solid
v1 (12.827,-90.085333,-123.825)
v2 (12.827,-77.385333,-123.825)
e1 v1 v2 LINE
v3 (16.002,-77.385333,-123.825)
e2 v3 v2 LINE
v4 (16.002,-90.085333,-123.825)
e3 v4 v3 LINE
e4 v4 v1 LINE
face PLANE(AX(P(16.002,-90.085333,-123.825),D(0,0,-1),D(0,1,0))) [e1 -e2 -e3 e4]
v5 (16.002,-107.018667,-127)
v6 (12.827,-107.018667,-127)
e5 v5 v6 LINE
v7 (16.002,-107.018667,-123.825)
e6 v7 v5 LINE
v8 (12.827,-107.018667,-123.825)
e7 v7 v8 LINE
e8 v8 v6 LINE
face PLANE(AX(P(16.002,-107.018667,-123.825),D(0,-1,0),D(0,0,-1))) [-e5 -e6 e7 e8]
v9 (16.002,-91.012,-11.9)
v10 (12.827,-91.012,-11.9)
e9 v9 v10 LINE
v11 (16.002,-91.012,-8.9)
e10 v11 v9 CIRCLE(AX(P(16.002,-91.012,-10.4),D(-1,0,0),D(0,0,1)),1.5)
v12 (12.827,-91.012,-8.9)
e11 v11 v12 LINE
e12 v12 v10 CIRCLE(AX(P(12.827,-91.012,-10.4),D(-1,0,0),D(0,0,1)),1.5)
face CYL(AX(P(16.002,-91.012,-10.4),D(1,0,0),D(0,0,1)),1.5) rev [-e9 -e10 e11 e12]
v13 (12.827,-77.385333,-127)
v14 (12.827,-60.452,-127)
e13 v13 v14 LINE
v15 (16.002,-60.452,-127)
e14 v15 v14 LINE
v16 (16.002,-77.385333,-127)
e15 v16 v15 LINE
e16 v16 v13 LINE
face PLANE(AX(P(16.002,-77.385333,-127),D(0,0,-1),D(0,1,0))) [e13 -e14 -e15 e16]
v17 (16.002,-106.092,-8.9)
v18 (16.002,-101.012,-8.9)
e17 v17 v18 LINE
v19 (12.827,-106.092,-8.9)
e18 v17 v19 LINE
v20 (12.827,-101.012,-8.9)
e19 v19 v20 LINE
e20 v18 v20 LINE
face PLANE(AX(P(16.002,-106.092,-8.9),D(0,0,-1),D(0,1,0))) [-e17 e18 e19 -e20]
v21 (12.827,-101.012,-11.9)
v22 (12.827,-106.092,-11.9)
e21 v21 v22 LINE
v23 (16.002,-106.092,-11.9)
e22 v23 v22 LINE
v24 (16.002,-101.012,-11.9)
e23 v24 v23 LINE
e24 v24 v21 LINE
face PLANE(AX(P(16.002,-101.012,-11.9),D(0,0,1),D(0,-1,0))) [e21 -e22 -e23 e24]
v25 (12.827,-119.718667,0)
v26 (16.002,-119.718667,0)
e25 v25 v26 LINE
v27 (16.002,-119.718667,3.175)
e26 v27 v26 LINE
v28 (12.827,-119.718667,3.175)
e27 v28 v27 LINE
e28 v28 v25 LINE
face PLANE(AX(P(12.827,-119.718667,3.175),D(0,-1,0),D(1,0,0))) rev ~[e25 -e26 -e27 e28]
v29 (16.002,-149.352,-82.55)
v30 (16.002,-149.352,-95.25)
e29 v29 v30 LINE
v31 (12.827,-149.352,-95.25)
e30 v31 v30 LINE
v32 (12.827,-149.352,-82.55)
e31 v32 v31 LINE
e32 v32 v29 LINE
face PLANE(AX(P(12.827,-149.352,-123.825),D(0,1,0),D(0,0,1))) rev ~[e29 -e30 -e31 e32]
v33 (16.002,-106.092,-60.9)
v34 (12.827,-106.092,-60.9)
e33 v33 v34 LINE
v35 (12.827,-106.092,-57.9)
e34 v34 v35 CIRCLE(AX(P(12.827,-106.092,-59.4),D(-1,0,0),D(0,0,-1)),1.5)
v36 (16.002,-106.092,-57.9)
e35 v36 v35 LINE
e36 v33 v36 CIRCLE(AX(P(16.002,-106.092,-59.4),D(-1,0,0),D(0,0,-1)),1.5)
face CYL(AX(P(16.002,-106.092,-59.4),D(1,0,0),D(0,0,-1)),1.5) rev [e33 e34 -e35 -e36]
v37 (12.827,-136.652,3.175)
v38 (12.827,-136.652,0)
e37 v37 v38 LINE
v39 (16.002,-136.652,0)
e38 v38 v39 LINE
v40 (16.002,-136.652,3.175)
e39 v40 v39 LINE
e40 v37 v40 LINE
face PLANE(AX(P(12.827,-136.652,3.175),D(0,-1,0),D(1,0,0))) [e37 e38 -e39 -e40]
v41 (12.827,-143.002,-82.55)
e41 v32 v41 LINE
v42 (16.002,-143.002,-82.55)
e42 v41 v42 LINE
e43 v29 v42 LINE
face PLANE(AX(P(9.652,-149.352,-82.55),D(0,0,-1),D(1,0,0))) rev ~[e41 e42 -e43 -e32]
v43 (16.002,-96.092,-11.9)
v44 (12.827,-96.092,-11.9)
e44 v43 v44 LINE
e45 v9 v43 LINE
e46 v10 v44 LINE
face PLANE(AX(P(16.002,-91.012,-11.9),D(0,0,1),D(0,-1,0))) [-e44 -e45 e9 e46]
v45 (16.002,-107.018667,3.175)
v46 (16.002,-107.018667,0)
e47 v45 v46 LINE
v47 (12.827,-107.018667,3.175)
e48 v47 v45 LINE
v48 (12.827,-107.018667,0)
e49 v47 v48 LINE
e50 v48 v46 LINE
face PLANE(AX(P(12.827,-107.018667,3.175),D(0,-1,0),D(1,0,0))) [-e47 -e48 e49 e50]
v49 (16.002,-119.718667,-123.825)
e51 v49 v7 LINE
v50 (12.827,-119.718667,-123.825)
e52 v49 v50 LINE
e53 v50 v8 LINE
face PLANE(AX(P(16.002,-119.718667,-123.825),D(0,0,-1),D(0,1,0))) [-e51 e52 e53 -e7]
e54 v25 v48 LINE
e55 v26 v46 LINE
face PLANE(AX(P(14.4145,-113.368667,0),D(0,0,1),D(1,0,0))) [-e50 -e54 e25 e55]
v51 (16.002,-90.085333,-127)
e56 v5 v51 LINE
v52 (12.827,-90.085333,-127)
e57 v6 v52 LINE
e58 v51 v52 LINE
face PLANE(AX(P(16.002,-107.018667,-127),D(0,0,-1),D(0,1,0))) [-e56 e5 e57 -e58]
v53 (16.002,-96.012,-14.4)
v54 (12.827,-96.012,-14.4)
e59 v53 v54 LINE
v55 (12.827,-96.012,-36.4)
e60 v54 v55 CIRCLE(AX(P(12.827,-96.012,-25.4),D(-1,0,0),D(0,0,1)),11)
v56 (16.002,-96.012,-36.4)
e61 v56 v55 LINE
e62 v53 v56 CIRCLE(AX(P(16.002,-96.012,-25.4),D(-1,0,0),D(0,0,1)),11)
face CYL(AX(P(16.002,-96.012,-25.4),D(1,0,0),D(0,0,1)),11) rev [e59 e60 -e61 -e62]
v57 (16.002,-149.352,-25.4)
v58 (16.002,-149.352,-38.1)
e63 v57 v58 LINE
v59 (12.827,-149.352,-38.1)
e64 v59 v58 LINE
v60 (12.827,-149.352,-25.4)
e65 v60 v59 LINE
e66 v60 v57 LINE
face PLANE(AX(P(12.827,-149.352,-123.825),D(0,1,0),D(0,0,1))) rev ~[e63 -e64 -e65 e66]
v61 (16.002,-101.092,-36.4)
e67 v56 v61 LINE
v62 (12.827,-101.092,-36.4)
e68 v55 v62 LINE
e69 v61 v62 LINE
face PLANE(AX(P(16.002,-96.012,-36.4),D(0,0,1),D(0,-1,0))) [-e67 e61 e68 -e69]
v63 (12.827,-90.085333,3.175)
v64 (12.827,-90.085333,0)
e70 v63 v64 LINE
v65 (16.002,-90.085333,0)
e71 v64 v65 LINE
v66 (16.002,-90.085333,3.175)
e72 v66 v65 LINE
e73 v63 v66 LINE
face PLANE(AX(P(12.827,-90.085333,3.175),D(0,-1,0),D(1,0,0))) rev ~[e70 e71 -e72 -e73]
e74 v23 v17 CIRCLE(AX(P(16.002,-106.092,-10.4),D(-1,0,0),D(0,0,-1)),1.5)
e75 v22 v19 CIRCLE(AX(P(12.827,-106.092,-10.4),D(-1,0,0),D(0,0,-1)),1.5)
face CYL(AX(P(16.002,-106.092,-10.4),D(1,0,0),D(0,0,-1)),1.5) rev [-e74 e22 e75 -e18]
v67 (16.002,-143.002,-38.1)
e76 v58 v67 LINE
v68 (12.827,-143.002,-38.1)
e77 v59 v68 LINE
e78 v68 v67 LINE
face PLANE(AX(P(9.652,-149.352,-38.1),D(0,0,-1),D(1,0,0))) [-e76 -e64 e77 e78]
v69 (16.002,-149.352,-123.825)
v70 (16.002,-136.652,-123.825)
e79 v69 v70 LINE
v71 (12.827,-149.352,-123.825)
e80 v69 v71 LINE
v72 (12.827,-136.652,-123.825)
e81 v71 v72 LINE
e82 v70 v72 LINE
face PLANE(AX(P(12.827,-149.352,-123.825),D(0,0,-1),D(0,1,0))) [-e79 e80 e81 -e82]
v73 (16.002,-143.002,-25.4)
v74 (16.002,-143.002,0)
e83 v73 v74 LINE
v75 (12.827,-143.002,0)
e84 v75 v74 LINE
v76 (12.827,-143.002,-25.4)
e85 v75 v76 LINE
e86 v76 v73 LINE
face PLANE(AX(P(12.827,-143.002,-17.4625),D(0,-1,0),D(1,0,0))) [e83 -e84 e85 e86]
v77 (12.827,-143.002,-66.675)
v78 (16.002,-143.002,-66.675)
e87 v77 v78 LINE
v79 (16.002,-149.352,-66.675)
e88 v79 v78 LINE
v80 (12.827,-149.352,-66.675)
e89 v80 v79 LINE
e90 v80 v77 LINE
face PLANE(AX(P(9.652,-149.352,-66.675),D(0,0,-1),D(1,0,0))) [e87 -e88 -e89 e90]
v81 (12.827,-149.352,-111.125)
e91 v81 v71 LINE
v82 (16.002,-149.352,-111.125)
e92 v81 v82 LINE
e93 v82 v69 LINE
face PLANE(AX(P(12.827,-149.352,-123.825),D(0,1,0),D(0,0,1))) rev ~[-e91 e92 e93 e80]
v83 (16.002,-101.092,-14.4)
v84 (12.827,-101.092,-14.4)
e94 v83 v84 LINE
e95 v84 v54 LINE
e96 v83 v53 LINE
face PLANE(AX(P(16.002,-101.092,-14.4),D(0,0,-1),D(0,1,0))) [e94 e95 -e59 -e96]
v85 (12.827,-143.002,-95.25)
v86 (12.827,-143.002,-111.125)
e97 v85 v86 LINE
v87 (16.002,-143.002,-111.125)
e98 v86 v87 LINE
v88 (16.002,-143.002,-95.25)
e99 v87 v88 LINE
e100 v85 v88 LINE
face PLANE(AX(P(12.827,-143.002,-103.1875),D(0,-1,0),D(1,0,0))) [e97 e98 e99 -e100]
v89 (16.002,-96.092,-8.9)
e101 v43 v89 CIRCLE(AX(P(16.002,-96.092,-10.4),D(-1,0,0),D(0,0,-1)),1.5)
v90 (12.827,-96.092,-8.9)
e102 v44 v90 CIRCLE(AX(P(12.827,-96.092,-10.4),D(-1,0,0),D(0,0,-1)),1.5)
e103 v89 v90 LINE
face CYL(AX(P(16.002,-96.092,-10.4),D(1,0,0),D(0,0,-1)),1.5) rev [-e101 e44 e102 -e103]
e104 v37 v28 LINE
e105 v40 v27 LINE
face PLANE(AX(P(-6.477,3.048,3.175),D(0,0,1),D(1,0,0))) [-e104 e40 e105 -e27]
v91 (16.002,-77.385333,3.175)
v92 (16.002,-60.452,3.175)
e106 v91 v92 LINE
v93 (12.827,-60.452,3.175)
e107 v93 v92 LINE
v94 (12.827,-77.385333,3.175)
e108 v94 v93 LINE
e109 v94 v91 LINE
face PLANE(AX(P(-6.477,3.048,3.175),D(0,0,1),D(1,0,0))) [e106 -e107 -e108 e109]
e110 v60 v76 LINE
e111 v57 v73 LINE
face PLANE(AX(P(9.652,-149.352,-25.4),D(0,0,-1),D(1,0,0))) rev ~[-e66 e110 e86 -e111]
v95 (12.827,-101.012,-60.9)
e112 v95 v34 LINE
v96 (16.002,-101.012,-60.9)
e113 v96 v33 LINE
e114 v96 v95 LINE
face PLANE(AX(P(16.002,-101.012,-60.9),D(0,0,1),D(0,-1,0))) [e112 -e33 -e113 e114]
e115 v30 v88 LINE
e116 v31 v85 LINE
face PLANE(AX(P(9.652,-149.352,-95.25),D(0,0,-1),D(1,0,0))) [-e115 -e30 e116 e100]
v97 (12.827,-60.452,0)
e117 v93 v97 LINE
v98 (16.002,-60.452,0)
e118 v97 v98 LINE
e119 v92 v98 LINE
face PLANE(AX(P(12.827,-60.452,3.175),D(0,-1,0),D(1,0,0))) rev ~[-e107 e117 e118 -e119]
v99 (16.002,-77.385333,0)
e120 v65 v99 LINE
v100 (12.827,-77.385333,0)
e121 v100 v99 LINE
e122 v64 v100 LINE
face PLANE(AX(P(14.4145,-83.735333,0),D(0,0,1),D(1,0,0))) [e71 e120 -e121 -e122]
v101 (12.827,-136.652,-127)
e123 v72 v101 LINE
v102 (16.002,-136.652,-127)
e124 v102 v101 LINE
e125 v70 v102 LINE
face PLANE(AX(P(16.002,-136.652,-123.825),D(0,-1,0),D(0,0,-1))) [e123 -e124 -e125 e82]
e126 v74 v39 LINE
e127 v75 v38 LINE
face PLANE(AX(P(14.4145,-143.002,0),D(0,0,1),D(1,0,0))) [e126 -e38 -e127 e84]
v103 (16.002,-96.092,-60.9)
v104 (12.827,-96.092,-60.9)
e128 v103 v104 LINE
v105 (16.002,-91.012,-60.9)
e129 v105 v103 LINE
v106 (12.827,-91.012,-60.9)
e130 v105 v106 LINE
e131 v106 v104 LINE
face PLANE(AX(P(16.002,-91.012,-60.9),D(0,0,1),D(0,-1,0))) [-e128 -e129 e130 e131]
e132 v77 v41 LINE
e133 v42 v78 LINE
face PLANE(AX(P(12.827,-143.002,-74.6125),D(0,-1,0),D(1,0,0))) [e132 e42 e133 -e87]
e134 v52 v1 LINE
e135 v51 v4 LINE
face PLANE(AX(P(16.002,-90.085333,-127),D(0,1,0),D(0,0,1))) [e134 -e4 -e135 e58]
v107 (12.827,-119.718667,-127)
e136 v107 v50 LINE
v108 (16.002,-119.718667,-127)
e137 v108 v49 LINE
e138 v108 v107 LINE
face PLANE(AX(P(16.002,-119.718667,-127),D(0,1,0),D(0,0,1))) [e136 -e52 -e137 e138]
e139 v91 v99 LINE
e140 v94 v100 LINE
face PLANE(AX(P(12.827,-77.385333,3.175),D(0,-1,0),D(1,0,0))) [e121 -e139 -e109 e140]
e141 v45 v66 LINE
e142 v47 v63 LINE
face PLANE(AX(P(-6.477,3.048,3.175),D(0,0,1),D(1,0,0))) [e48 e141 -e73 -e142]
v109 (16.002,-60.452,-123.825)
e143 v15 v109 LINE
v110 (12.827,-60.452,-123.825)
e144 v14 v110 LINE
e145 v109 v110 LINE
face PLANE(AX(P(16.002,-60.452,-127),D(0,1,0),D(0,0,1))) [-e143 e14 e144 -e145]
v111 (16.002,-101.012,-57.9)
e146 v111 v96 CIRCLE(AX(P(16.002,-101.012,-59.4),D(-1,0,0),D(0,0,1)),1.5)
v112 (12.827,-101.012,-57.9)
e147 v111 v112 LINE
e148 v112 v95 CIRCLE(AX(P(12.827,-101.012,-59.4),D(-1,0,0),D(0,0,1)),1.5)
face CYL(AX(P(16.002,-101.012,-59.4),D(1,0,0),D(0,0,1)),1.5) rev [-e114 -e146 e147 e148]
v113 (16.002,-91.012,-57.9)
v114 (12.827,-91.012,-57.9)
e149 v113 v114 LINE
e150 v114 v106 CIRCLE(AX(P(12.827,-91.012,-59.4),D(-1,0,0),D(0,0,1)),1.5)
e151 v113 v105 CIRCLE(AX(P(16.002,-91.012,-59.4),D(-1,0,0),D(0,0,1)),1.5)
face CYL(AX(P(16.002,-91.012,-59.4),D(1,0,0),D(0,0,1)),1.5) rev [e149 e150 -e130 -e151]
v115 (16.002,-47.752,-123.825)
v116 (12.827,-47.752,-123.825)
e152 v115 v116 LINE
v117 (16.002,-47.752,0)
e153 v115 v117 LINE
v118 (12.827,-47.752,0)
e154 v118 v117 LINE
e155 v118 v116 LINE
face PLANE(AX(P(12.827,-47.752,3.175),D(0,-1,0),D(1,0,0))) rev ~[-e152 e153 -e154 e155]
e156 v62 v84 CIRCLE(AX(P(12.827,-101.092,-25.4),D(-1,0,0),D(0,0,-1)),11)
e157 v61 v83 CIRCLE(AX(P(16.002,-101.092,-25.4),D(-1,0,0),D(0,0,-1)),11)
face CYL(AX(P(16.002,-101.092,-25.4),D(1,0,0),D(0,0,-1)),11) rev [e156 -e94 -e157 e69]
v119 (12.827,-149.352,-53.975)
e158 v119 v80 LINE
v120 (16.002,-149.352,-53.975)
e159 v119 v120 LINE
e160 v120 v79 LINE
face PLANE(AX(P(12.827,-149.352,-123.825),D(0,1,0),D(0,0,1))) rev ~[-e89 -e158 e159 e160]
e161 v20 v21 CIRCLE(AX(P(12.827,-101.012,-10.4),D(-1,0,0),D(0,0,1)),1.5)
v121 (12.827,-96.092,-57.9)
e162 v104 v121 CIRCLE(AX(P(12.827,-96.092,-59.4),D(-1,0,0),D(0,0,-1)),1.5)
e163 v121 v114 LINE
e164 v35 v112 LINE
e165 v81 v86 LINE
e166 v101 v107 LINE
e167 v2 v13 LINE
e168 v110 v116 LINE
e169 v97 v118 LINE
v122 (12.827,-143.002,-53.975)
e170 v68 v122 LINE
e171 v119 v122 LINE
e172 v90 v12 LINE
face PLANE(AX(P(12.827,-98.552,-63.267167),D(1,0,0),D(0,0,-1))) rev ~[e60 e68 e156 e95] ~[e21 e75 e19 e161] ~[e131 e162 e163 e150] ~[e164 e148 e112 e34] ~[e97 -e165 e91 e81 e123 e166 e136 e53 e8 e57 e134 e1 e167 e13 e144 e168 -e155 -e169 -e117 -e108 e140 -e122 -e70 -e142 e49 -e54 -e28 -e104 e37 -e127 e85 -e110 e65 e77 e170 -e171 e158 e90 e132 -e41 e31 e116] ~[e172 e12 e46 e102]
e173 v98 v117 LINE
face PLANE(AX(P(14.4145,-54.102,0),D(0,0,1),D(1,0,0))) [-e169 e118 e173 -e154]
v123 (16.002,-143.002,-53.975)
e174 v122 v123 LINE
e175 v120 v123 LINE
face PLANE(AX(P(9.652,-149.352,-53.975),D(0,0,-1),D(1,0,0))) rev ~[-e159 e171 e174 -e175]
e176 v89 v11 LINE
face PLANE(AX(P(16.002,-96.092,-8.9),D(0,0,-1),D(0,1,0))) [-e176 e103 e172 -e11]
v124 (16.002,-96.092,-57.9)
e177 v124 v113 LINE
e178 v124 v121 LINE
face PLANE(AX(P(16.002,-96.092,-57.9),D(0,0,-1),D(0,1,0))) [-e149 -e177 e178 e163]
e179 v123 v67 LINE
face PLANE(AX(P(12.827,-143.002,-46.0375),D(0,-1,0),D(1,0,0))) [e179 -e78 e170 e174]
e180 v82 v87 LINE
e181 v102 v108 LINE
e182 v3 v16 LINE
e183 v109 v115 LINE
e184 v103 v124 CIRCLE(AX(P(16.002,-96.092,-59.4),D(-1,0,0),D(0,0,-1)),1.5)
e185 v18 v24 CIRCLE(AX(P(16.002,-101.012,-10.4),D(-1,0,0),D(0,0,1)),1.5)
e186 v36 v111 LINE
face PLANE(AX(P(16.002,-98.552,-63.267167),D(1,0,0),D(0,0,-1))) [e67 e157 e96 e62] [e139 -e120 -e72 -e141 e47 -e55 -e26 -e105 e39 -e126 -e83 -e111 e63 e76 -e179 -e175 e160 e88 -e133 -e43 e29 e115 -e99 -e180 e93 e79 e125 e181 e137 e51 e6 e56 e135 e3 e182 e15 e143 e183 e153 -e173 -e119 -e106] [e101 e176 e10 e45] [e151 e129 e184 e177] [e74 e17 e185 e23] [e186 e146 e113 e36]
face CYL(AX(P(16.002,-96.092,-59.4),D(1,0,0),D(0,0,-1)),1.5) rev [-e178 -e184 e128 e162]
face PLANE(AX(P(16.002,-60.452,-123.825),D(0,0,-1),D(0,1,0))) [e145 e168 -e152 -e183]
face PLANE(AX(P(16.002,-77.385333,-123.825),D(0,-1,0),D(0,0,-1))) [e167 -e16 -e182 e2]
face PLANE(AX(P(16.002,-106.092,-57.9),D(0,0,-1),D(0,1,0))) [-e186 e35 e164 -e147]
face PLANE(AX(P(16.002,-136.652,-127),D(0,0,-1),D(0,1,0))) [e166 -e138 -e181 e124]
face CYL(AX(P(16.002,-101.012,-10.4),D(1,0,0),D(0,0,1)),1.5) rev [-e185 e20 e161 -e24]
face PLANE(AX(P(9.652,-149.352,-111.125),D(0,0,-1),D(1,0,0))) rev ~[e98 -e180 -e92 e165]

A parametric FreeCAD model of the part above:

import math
import FreeCAD as App
import Part
import Sketcher
from FreeCAD import Vector
Q = App.Units.Quantity

doc = App.newDocument("Part")
body = doc.addObject("PartDesign::Body", "Body")

# Sketch on XY plane
sketch1 = doc.addObject("Sketcher::SketchObject", "Sketch")
body.addObject(sketch1)
sketch1.AttachmentSupport = (doc.XY_Plane, [""])
sketch1.MapMode = "FlatFace"
sketch1.addGeometry(Part.LineSegment(Vector(-29, 155.4, 0), Vector(-29, -149.4, 0)), False)
sketch1.addGeometry(Part.LineSegment(Vector(-29, -149.4, 0), Vector(16, -149.4, 0)), False)
sketch1.addGeometry(Part.LineSegment(Vector(16, -149.4, 0), Vector(16, 155.4, 0)), False)
sketch1.addGeometry(Part.LineSegment(Vector(16, 155.4, 0), Vector(-29, 155.4, 0)), False)
sketch1.addGeometry(Part.LineSegment(Vector(-3.3, -143, 0), Vector(-3.3, 133.9, 0)), False)
sketch1.addGeometry(Part.ArcOfCircle(Part.Circle(Vector(-5.8, 133.9, 0), Vector(0, 0, 1), 2.5), math.radians(0), math.radians(90)), False)
sketch1.addGeometry(Part.LineSegment(Vector(-5.8, 136.4, 0), Vector(-16.3, 136.4, 0)), False)
sketch1.addGeometry(Part.LineSegment(Vector(-16.3, 136.4, 0), Vector(-16.3, 143, 0)), False)
sketch1.addGeometry(Part.LineSegment(Vector(-16.3, 143, 0), Vector(3.3, 143, 0)), False)
sketch1.addGeometry(Part.LineSegment(Vector(3.3, 143, 0), Vector(3.3, -143, 0)), False)
sketch1.addGeometry(Part.LineSegment(Vector(3.3, -143, 0), Vector(-3.3, -143, 0)), False)
sketch1.addConstraint(Sketcher.Constraint("Coincident", 0, 2, 1, 1))
sketch1.addConstraint(Sketcher.Constraint("Coincident", 1, 2, 2, 1))
sketch1.addConstraint(Sketcher.Constraint("Coincident", 2, 2, 3, 1))
sketch1.addConstraint(Sketcher.Constraint("Coincident", 3, 2, 0, 1))
sketch1.addConstraint(Sketcher.Constraint("Tangent", 4, 2, 5, 1))
sketch1.addConstraint(Sketcher.Constraint("Tangent", 5, 2, 6, 1))
sketch1.addConstraint(Sketcher.Constraint("Coincident", 6, 2, 7, 1))
sketch1.addConstraint(Sketcher.Constraint("Coincident", 7, 2, 8, 1))
sketch1.addConstraint(Sketcher.Constraint("Coincident", 8, 2, 9, 1))
sketch1.addConstraint(Sketcher.Constraint("Coincident", 9, 2, 10, 1))
sketch1.addConstraint(Sketcher.Constraint("Coincident", 10, 2, 4, 1))
sketch1.addConstraint(Sketcher.Constraint("Vertical", 0))
sketch1.addConstraint(Sketcher.Constraint("Horizontal", 1))
sketch1.addConstraint(Sketcher.Constraint("Vertical", 2))
sketch1.addConstraint(Sketcher.Constraint("Horizontal", 3))
sketch1.addConstraint(Sketcher.Constraint("Vertical", 4))
sketch1.addConstraint(Sketcher.Constraint("Horizontal", 6))
sketch1.addConstraint(Sketcher.Constraint("Vertical", 7))
sketch1.addConstraint(Sketcher.Constraint("Horizontal", 8))
sketch1.addConstraint(Sketcher.Constraint("Vertical", 9))
sketch1.addConstraint(Sketcher.Constraint("Horizontal", 10))
sketch1.addConstraint(Sketcher.Constraint("Symmetric", 8, 2, 10, 2, -1, 1))
sketch1.addConstraint(Sketcher.Constraint("Equal", 10, 7))
sketch1.addConstraint(Sketcher.Constraint("Radius", 5, Q("0.1 in")))
sketch1.addConstraint(Sketcher.Constraint("DistanceY", 0, 2, 0, 1, Q("12 in")))
sketch1.addConstraint(Sketcher.Constraint("DistanceY", 4, 1, 4, 2, Q("10.9 in")))
sketch1.addConstraint(Sketcher.Constraint("DistanceX", 1, 1, 1, 2, Q("1.77 in")))
sketch1.addConstraint(Sketcher.Constraint("DistanceX", 6, 2, 6, 1, Q("0.41 in")))
sketch1.addConstraint(Sketcher.Constraint("DistanceX", 8, 1, 8, 2, Q("0.77 in")))
sketch1.addConstraint(Sketcher.Constraint("DistanceX", 3, 2, 6, 2, Q("0.5 in")))
sketch1.addConstraint(Sketcher.Constraint("DistanceY", 0, 2, -1, 1, Q("5.88 in")))
pad1 = doc.addObject("PartDesign::Pad", "Pad")
body.addObject(pad1)
pad1.Profile = sketch1
pad1.Length = Q("0.125 in")

# Sketch on YZ plane
sketch2 = doc.addObject("Sketcher::SketchObject", "Sketch001")
body.addObject(sketch2)
sketch2.AttachmentSupport = (doc.YZ_Plane, [""])
sketch2.MapMode = "FlatFace"
sketch2.AttachmentOffset = App.Placement(Vector(0, 0, 0.63 * 25.4), App.Rotation())
sketch2.addGeometry(Part.LineSegment(Vector(-47.8, -123.8, 0), Vector(-47.8, 3.2, 0)), False)
sketch2.addGeometry(Part.LineSegment(Vector(-47.8, 3.2, 0), Vector(-149.4, 3.2, 0)), False)
sketch2.addGeometry(Part.LineSegment(Vector(-149.4, 3.2, 0), Vector(-149.4, -123.8, 0)), False)
sketch2.addGeometry(Part.LineSegment(Vector(-149.4, -123.8, 0), Vector(-136.7, -123.8, 0)), False)
sketch2.addGeometry(Part.LineSegment(Vector(-136.7, -123.8, 0), Vector(-136.7, -127, 0)), False)
sketch2.addGeometry(Part.LineSegment(Vector(-136.7, -127, 0), Vector(-119.7, -127, 0)), False)
sketch2.addGeometry(Part.LineSegment(Vector(-119.7, -127, 0), Vector(-119.7, -123.8, 0)), False)
sketch2.addGeometry(Part.LineSegment(Vector(-119.7, -123.8, 0), Vector(-107, -123.8, 0)), False)
sketch2.addGeometry(Part.LineSegment(Vector(-107, -123.8, 0), Vector(-107, -127, 0)), False)
sketch2.addGeometry(Part.LineSegment(Vector(-107, -127, 0), Vector(-90.1, -127, 0)), False)
sketch2.addGeometry(Part.LineSegment(Vector(-90.1, -127, 0), Vector(-90.1, -123.8, 0)), False)
sketch2.addGeometry(Part.LineSegment(Vector(-90.1, -123.8, 0), Vector(-77.4, -123.8, 0)), False)
sketch2.addGeometry(Part.LineSegment(Vector(-77.4, -123.8, 0), Vector(-77.4, -127, 0)), False)
sketch2.addGeometry(Part.LineSegment(Vector(-77.4, -127, 0), Vector(-60.5, -127, 0)), False)
sketch2.addGeometry(Part.LineSegment(Vector(-60.5, -127, 0), Vector(-60.5, -123.8, 0)), False)
sketch2.addGeometry(Part.LineSegment(Vector(-60.5, -123.8, 0), Vector(-47.8, -123.8, 0)), False)
sketch2.addGeometry(Part.LineSegment(Vector(-101, -11.9, 0), Vector(-106.1, -11.9, 0)), False)
sketch2.addGeometry(Part.ArcOfCircle(Part.Circle(Vector(-106.1, -10.4, 0), Vector(0, 0, 1), 1.5), math.radians(90), math.radians(270)), False)
sketch2.addGeometry(Part.LineSegment(Vector(-106.1, -8.9, 0), Vector(-101, -8.9, 0)), False)
sketch2.addGeometry(Part.ArcOfCircle(Part.Circle(Vector(-101, -10.4, 0), Vector(0, 0, 1), 1.5), math.radians(-90), math.radians(90)), False)
sketch2.addGeometry(Part.LineSegment(Vector(-101, -60.9, 0), Vector(-106.1, -60.9, 0)), False)
sketch2.addGeometry(Part.ArcOfCircle(Part.Circle(Vector(-106.1, -59.4, 0), Vector(0, 0, 1), 1.5), math.radians(90), math.radians(270)), False)
sketch2.addGeometry(Part.LineSegment(Vector(-106.1, -57.9, 0), Vector(-101, -57.9, 0)), False)
sketch2.addGeometry(Part.ArcOfCircle(Part.Circle(Vector(-101, -59.4, 0), Vector(0, 0, 1), 1.5), math.radians(-90), math.radians(90)), False)
sketch2.addGeometry(Part.ArcOfCircle(Part.Circle(Vector(-96.1, -10.4, 0), Vector(0, 0, 1), 1.5), math.radians(90), math.radians(270)), False)
sketch2.addGeometry(Part.LineSegment(Vector(-96.1, -8.9, 0), Vector(-91, -8.9, 0)), False)
sketch2.addGeometry(Part.ArcOfCircle(Part.Circle(Vector(-91, -10.4, 0), Vector(0, 0, 1), 1.5), math.radians(-90), math.radians(90)), False)
sketch2.addGeometry(Part.LineSegment(Vector(-91, -11.9, 0), Vector(-96.1, -11.9, 0)), False)
sketch2.addGeometry(Part.LineSegment(Vector(-96, -36.4, 0), Vector(-101.1, -36.4, 0)), False)
sketch2.addGeometry(Part.ArcOfCircle(Part.Circle(Vector(-101.1, -25.4, 0), Vector(0, 0, 1), 11), math.radians(90), math.radians(270)), False)
sketch2.addGeometry(Part.LineSegment(Vector(-101.1, -14.4, 0), Vector(-96, -14.4, 0)), False)
sketch2.addGeometry(Part.ArcOfCircle(Part.Circle(Vector(-96, -25.4, 0), Vector(0, 0, 1), 11), math.radians(-90), math.radians(90)), False)
sketch2.addGeometry(Part.LineSegment(Vector(-96.1, -57.9, 0), Vector(-91, -57.9, 0)), False)
sketch2.addGeometry(Part.ArcOfCircle(Part.Circle(Vector(-91, -59.4, 0), Vector(0, 0, 1), 1.5), math.radians(-90), math.radians(90)), False)
sketch2.addGeometry(Part.LineSegment(Vector(-91, -60.9, 0), Vector(-96.1, -60.9, 0)), False)
sketch2.addGeometry(Part.ArcOfCircle(Part.Circle(Vector(-96.1, -59.4, 0), Vector(0, 0, 1), 1.5), math.radians(90), math.radians(270)), False)
sketch2.addConstraint(Sketcher.Constraint("Coincident", 0, 2, 1, 1))
sketch2.addConstraint(Sketcher.Constraint("Coincident", 1, 2, 2, 1))
sketch2.addConstraint(Sketcher.Constraint("Coincident", 2, 2, 3, 1))
sketch2.addConstraint(Sketcher.Constraint("Coincident", 3, 2, 4, 1))
sketch2.addConstraint(Sketcher.Constraint("Coincident", 4, 2, 5, 1))
sketch2.addConstraint(Sketcher.Constraint("Coincident", 5, 2, 6, 1))
sketch2.addConstraint(Sketcher.Constraint("Coincident", 6, 2, 7, 1))
sketch2.addConstraint(Sketcher.Constraint("Coincident", 7, 2, 8, 1))
sketch2.addConstraint(Sketcher.Constraint("Coincident", 8, 2, 9, 1))
sketch2.addConstraint(Sketcher.Constraint("Coincident", 9, 2, 10, 1))
sketch2.addConstraint(Sketcher.Constraint("Coincident", 10, 2, 11, 1))
sketch2.addConstraint(Sketcher.Constraint("Coincident", 11, 2, 12, 1))
sketch2.addConstraint(Sketcher.Constraint("Coincident", 12, 2, 13, 1))
sketch2.addConstraint(Sketcher.Constraint("Coincident", 13, 2, 14, 1))
sketch2.addConstraint(Sketcher.Constraint("Coincident", 14, 2, 15, 1))
sketch2.addConstraint(Sketcher.Constraint("Coincident", 15, 2, 0, 1))
sketch2.addConstraint(Sketcher.Constraint("Tangent", 16, 2, 17, 2))
sketch2.addConstraint(Sketcher.Constraint("Tangent", 17, 1, 18, 1))
sketch2.addConstraint(Sketcher.Constraint("Tangent", 18, 2, 19, 2))
sketch2.addConstraint(Sketcher.Constraint("Tangent", 19, 1, 16, 1))
sketch2.addConstraint(Sketcher.Constraint("Tangent", 20, 2, 21, 2))
sketch2.addConstraint(Sketcher.Constraint("Tangent", 21, 1, 22, 1))
sketch2.addConstraint(Sketcher.Constraint("Tangent", 22, 2, 23, 2))
sketch2.addConstraint(Sketcher.Constraint("Tangent", 23, 1, 20, 1))
sketch2.addConstraint(Sketcher.Constraint("Tangent", 24, 1, 25, 1))
sketch2.addConstraint(Sketcher.Constraint("Tangent", 25, 2, 26, 2))
sketch2.addConstraint(Sketcher.Constraint("Tangent", 26, 1, 27, 1))
sketch2.addConstraint(Sketcher.Constraint("Tangent", 27, 2, 24, 2))
sketch2.addConstraint(Sketcher.Constraint("Tangent", 28, 2, 29, 2))
sketch2.addConstraint(Sketcher.Constraint("Tangent", 29, 1, 30, 1))
sketch2.addConstraint(Sketcher.Constraint("Tangent", 30, 2, 31, 2))
sketch2.addConstraint(Sketcher.Constraint("Tangent", 31, 1, 28, 1))
sketch2.addConstraint(Sketcher.Constraint("Tangent", 32, 2, 33, 2))
sketch2.addConstraint(Sketcher.Constraint("Tangent", 33, 1, 34, 1))
sketch2.addConstraint(Sketcher.Constraint("Tangent", 34, 2, 35, 2))
sketch2.addConstraint(Sketcher.Constraint("Tangent", 35, 1, 32, 1))
sketch2.addConstraint(Sketcher.Constraint("Vertical", 0))
sketch2.addConstraint(Sketcher.Constraint("Horizontal", 1))
sketch2.addConstraint(Sketcher.Constraint("Vertical", 2))
sketch2.addConstraint(Sketcher.Constraint("Horizontal", 3))
sketch2.addConstraint(Sketcher.Constraint("Vertical", 4))
sketch2.addConstraint(Sketcher.Constraint("Horizontal", 5))
sketch2.addConstraint(Sketcher.Constraint("Vertical", 6))
sketch2.addConstraint(Sketcher.Constraint("Horizontal", 7))
sketch2.addConstraint(Sketcher.Constraint("Vertical", 8))
sketch2.addConstraint(Sketcher.Constraint("Horizontal", 9))
sketch2.addConstraint(Sketcher.Constraint("Vertical", 10))
sketch2.addConstraint(Sketcher.Constraint("Horizontal", 11))
sketch2.addConstraint(Sketcher.Constraint("Vertical", 12))
sketch2.addConstraint(Sketcher.Constraint("Horizontal", 13))
sketch2.addConstraint(Sketcher.Constraint("Vertical", 14))
sketch2.addConstraint(Sketcher.Constraint("Horizontal", 15))
sketch2.addConstraint(Sketcher.Constraint("Horizontal", 16))
sketch2.addConstraint(Sketcher.Constraint("Horizontal", 18))
sketch2.addConstraint(Sketcher.Constraint("Horizontal", 20))
sketch2.addConstraint(Sketcher.Constraint("Horizontal", 22))
sketch2.addConstraint(Sketcher.Constraint("Horizontal", 25))
sketch2.addConstraint(Sketcher.Constraint("Horizontal", 27))
sketch2.addConstraint(Sketcher.Constraint("Horizontal", 28))
sketch2.addConstraint(Sketcher.Constraint("Horizontal", 30))
sketch2.addConstraint(Sketcher.Constraint("Horizontal", 32))
sketch2.addConstraint(Sketcher.Constraint("Horizontal", 34))
sketch2.addConstraint(Sketcher.Constraint("Equal", 19, 21))
sketch2.addConstraint(Sketcher.Constraint("Equal", 23, 24))
sketch2.addConstraint(Sketcher.Constraint("Equal", 26, 33))
sketch2.addConstraint(Sketcher.Constraint("Horizontal", 19, 3, 24, 3))
sketch2.addConstraint(Sketcher.Constraint("Horizontal", 23, 3, 33, 3))
sketch2.addConstraint(Sketcher.Constraint("Horizontal", 3, 2, 6, 2))
sketch2.addConstraint(Sketcher.Constraint("Horizontal", 5, 2, 8, 2))
sketch2.addConstraint(Sketcher.Constraint("Horizontal", 7, 2, 10, 2))
sketch2.addConstraint(Sketcher.Constraint("Horizontal", 9, 2, 12, 2))
sketch2.addConstraint(Sketcher.Constraint("Horizontal", 11, 2, 14, 2))
sketch2.addConstraint(Sketcher.Constraint("Vertical", 17, 3, 21, 3))
sketch2.addConstraint(Sketcher.Constraint("Vertical", 19, 3, 23, 3))
sketch2.addConstraint(Sketcher.Constraint("Vertical", 26, 3, 33, 3))
sketch2.addConstraint(Sketcher.Constraint("Vertical", 24, 3, 35, 3))
sketch2.addConstraint(Sketcher.Constraint("Equal", 3, 7))
sketch2.addConstraint(Sketcher.Constraint("Equal", 5, 9))
sketch2.addConstraint(Sketcher.Constraint("Equal", 7, 11))
sketch2.addConstraint(Sketcher.Constraint("Equal", 9, 13))
sketch2.addConstraint(Sketcher.Constraint("Equal", 11, 15))
sketch2.addConstraint(Sketcher.Constraint("Equal", 22, 25))
sketch2.addConstraint(Sketcher.Constraint("Equal", 27, 28))
sketch2.addConstraint(Sketcher.Constraint("DistanceX", 1, 2, 1, 1, Q("4 in")))
sketch2.addConstraint(Sketcher.Constraint("DistanceY", 0, 1, 0, 2, Q("5 in")))
sketch2.addConstraint(Sketcher.Constraint("DistanceX", 3, 1, 3, 2, Q("0.5 in")))
sketch2.addConstraint(Sketcher.Constraint("DistanceX", 16, 2, 16, 1, Q("0.2 in")))
sketch2.addConstraint(Sketcher.Constraint("DistanceY", 29, 3, -1, 1, Q("1 in")))
sketch2.addConstraint(Sketcher.Constraint("DistanceY", 4, 2, -1, 1, Q("5 in")))
sketch2.addConstraint(Sketcher.Constraint("DistanceX", 31, 3, 0, 2, Q("1.9 in")))
sketch2.addConstraint(Sketcher.Constraint("DistanceY", 4, 2, 4, 1, Q("0.125 in")))
sketch2.addConstraint(Sketcher.Constraint("DistanceX", 29, 3, -1, 1, Q("3.98 in")))
sketch2.addConstraint(Sketcher.Constraint("Radius", 17, 1.5))
sketch2.addConstraint(Sketcher.Constraint("Radius", 29, 11.0))
sketch2.addConstraint(Sketcher.Constraint("DistanceX", 17, 3, -1, 1, 106.092))
sketch2.addConstraint(Sketcher.Constraint("DistanceY", 17, 3, -1, 1, 10.4))
sketch2.addConstraint(Sketcher.Constraint("DistanceY", 21, 3, -1, 1, 59.4))
sketch2.addConstraint(Sketcher.Constraint("DistanceX", 24, 3, -1, 1, 96.092))
pad2 = doc.addObject("PartDesign::Pad", "Pad001")
body.addObject(pad2)
pad2.Profile = sketch2
pad2.Length = Q("0.125 in")
pad2.Reversed = True

# Sketch on YZ plane
sketch3 = doc.addObject("Sketcher::SketchObject", "Sketch002")
body.addObject(sketch3)
sketch3.AttachmentSupport = (doc.YZ_Plane, [""])
sketch3.MapMode = "FlatFace"
sketch3.AttachmentOffset = App.Placement(Vector(0, 0, 0.505 * 25.4), App.Rotation())
sketch3.addGeometry(Part.LineSegment(Vector(-143, -124, 0), Vector(-149, -124, 0)), False)
sketch3.addGeometry(Part.LineSegment(Vector(-149, -124, 0), Vector(-149, 0, 0)), False)
sketch3.addGeometry(Part.LineSegment(Vector(-149, 0, 0), Vector(-143, 0, 0)), False)
sketch3.addGeometry(Part.LineSegment(Vector(-143, 0, 0), Vector(-143, -124, 0)), False)
sketch3.addConstraint(Sketcher.Constraint("Coincident", 0, 2, 1, 1))
sketch3.addConstraint(Sketcher.Constraint("Coincident", 1, 2, 2, 1))
sketch3.addConstraint(Sketcher.Constraint("Coincident", 2, 2, 3, 1))
sketch3.addConstraint(Sketcher.Constraint("Coincident", 3, 2, 0, 1))
sketch3.addConstraint(Sketcher.Constraint("Horizontal", 0))
sketch3.addConstraint(Sketcher.Constraint("Vertical", 1))
sketch3.addConstraint(Sketcher.Constraint("Horizontal", 2))
sketch3.addConstraint(Sketcher.Constraint("Vertical", 3))
sketch3.addConstraint(Sketcher.Constraint("PointOnObject", 1, 2, -1))
sketch3.addConstraint(Sketcher.Constraint("DistanceX", 0, 2, 0, 1, Q("0.25 in")))
sketch3.addConstraint(Sketcher.Constraint("DistanceY", 1, 1, 1, 2, Q("4.875 in")))
sketch3.addConstraint(Sketcher.Constraint("DistanceX", 0, 2, -1, 1, Q("5.88 in")))
pad3 = doc.addObject("PartDesign::Pad", "Pad002")
body.addObject(pad3)
pad3.Profile = sketch3
pad3.Length = Q("1.645 in")
pad3.Reversed = True

# Sketch on XY plane
sketch4 = doc.addObject("Sketcher::SketchObject", "Sketch003")
body.addObject(sketch4)
sketch4.AttachmentSupport = (doc.XY_Plane, [""])
sketch4.MapMode = "FlatFace"
sketch4.AttachmentOffset = App.Placement(Vector(0, 0, 0.125 * 25.4), App.Rotation())
sketch4.addGeometry(Part.LineSegment(Vector(12.8, -149.4, 0), Vector(12.8, -47.8, 0)), False)
sketch4.addGeometry(Part.LineSegment(Vector(12.8, -47.8, 0), Vector(16, -47.8, 0)), False)
sketch4.addGeometry(Part.LineSegment(Vector(16, -47.8, 0), Vector(16, 165.7, 0)), False)
sketch4.addGeometry(Part.LineSegment(Vector(16, 165.7, 0), Vector(-54.2, 165.7, 0)), False)
sketch4.addGeometry(Part.LineSegment(Vector(-54.2, 165.7, 0), Vector(-54.2, -149.4, 0)), False)
sketch4.addGeometry(Part.LineSegment(Vector(-54.2, -149.4, 0), Vector(12.8, -149.4, 0)), False)
sketch4.addGeometry(Part.LineSegment(Vector(-5.8, 136.4, 0), Vector(-16.3, 136.4, 0)), False)
sketch4.addGeometry(Part.LineSegment(Vector(-16.3, 136.4, 0), Vector(-16.3, 143, 0)), False)
sketch4.addGeometry(Part.LineSegment(Vector(-16.3, 143, 0), Vector(3.3, 143, 0)), False)
sketch4.addGeometry(Part.LineSegment(Vector(3.3, 143, 0), Vector(3.3, -143, 0)), False)
sketch4.addGeometry(Part.LineSegment(Vector(3.3, -143, 0), Vector(-3.3, -143, 0)), False)
sketch4.addGeometry(Part.LineSegment(Vector(-3.3, -143, 0), Vector(-3.3, 133.9, 0)), False)
sketch4.addGeometry(Part.ArcOfCircle(Part.Circle(Vector(-5.8, 133.9, 0), Vector(0, 0, 1), 2.5), math.radians(0), math.radians(90)), False)
sketch4.addConstraint(Sketcher.Constraint("Coincident", 0, 2, 1, 1))
sketch4.addConstraint(Sketcher.Constraint("Coincident", 1, 2, 2, 1))
sketch4.addConstraint(Sketcher.Constraint("Coincident", 2, 2, 3, 1))
sketch4.addConstraint(Sketcher.Constraint("Coincident", 3, 2, 4, 1))
sketch4.addConstraint(Sketcher.Constraint("Coincident", 4, 2, 5, 1))
sketch4.addConstraint(Sketcher.Constraint("Coincident", 5, 2, 0, 1))
sketch4.addConstraint(Sketcher.Constraint("Coincident", 6, 2, 7, 1))
sketch4.addConstraint(Sketcher.Constraint("Coincident", 7, 2, 8, 1))
sketch4.addConstraint(Sketcher.Constraint("Coincident", 8, 2, 9, 1))
sketch4.addConstraint(Sketcher.Constraint("Coincident", 9, 2, 10, 1))
sketch4.addConstraint(Sketcher.Constraint("Coincident", 10, 2, 11, 1))
sketch4.addConstraint(Sketcher.Constraint("Tangent", 11, 2, 12, 1))
sketch4.addConstraint(Sketcher.Constraint("Tangent", 12, 2, 6, 1))
sketch4.addConstraint(Sketcher.Constraint("Vertical", 0))
sketch4.addConstraint(Sketcher.Constraint("Horizontal", 1))
sketch4.addConstraint(Sketcher.Constraint("Vertical", 2))
sketch4.addConstraint(Sketcher.Constraint("Horizontal", 3))
sketch4.addConstraint(Sketcher.Constraint("Vertical", 4))
sketch4.addConstraint(Sketcher.Constraint("Horizontal", 5))
sketch4.addConstraint(Sketcher.Constraint("Horizontal", 6))
sketch4.addConstraint(Sketcher.Constraint("Vertical", 7))
sketch4.addConstraint(Sketcher.Constraint("Horizontal", 8))
sketch4.addConstraint(Sketcher.Constraint("Vertical", 9))
sketch4.addConstraint(Sketcher.Constraint("Horizontal", 10))
sketch4.addConstraint(Sketcher.Constraint("Vertical", 11))
sketch4.addConstraint(Sketcher.Constraint("Symmetric", 8, 2, 10, 2, -1, 1))
sketch4.addConstraint(Sketcher.Constraint("Equal", 10, 7))
sketch4.addConstraint(Sketcher.Constraint("Radius", 12, Q("0.1 in")))
sketch4.addConstraint(Sketcher.Constraint("DistanceY", 0, 1, 0, 2, Q("4 in")))
sketch4.addConstraint(Sketcher.Constraint("DistanceY", 11, 1, 11, 2, Q("10.9 in")))
sketch4.addConstraint(Sketcher.Constraint("DistanceX", 6, 2, 6, 1, Q("0.41 in")))
sketch4.addConstraint(Sketcher.Constraint("DistanceX", 8, 1, 8, 2, Q("0.77 in")))
sketch4.addConstraint(Sketcher.Constraint("DistanceX", 8, 2, 2, 2, Q("0.5 in")))
sketch4.addConstraint(Sketcher.Constraint("DistanceX", 1, 1, 1, 2, Q("0.125 in")))
sketch4.addConstraint(Sketcher.Constraint("DistanceY", 0, 2, -1, 1, Q("1.88 in")))
sketch4.addConstraint(Sketcher.Constraint("DistanceY", 2, 1, 2, 2, 213.45135))
sketch4.addConstraint(Sketcher.Constraint("DistanceX", 3, 2, 3, 1, 70.225543))
pocket1 = doc.addObject("PartDesign::Pocket", "Pocket")
body.addObject(pocket1)
pocket1.Profile = sketch4
pocket1.Type = "ThroughAll"
pocket1.Midplane = True

# Sketch on XY plane
sketch5 = doc.addObject("Sketcher::SketchObject", "Sketch004")
body.addObject(sketch5)
sketch5.AttachmentSupport = (doc.XY_Plane, [""])
sketch5.MapMode = "FlatFace"
sketch5.AttachmentOffset = App.Placement(Vector(0, 0, 0.125 * 25.4), App.Rotation())
sketch5.addGeometry(Part.LineSegment(Vector(12.8, -47.8, 0), Vector(12.8, -60.5, 0)), False)
sketch5.addGeometry(Part.LineSegment(Vector(12.8, -60.5, 0), Vector(16, -60.5, 0)), False)
sketch5.addGeometry(Part.LineSegment(Vector(16, -60.5, 0), Vector(16, -47.8, 0)), False)
sketch5.addGeometry(Part.LineSegment(Vector(16, -47.8, 0), Vector(12.8, -47.8, 0)), False)
sketch5.addGeometry(Part.LineSegment(Vector(12.8, -77.4, 0), Vector(12.8, -90.1, 0)), False)
sketch5.addGeometry(Part.LineSegment(Vector(12.8, -90.1, 0), Vector(16, -90.1, 0)), False)
sketch5.addGeometry(Part.LineSegment(Vector(16, -90.1, 0), Vector(16, -77.4, 0)), False)
sketch5.addGeometry(Part.LineSegment(Vector(16, -77.4, 0), Vector(12.8, -77.4, 0)), False)
sketch5.addGeometry(Part.LineSegment(Vector(12.8, -107, 0), Vector(12.8, -119.7, 0)), False)
sketch5.addGeometry(Part.LineSegment(Vector(12.8, -119.7, 0), Vector(16, -119.7, 0)), False)
sketch5.addGeometry(Part.LineSegment(Vector(16, -119.7, 0), Vector(16, -107, 0)), False)
sketch5.addGeometry(Part.LineSegment(Vector(16, -107, 0), Vector(12.8, -107, 0)), False)
sketch5.addGeometry(Part.LineSegment(Vector(12.8, -136.7, 0), Vector(12.8, -149.4, 0)), False)
sketch5.addGeometry(Part.LineSegment(Vector(12.8, -149.4, 0), Vector(16, -149.4, 0)), False)
sketch5.addGeometry(Part.LineSegment(Vector(16, -149.4, 0), Vector(16, -136.7, 0)), False)
sketch5.addGeometry(Part.LineSegment(Vector(16, -136.7, 0), Vector(12.8, -136.7, 0)), False)
sketch5.addConstraint(Sketcher.Constraint("Coincident", 0, 2, 1, 1))
sketch5.addConstraint(Sketcher.Constraint("Coincident", 1, 2, 2, 1))
sketch5.addConstraint(Sketcher.Constraint("Coincident", 2, 2, 3, 1))
sketch5.addConstraint(Sketcher.Constraint("Coincident", 3, 2, 0, 1))
sketch5.addConstraint(Sketcher.Constraint("Coincident", 4, 2, 5, 1))
sketch5.addConstraint(Sketcher.Constraint("Coincident", 5, 2, 6, 1))
sketch5.addConstraint(Sketcher.Constraint("Coincident", 6, 2, 7, 1))
sketch5.addConstraint(Sketcher.Constraint("Coincident", 7, 2, 4, 1))
sketch5.addConstraint(Sketcher.Constraint("Coincident", 8, 2, 9, 1))
sketch5.addConstraint(Sketcher.Constraint("Coincident", 9, 2, 10, 1))
sketch5.addConstraint(Sketcher.Constraint("Coincident", 10, 2, 11, 1))
sketch5.addConstraint(Sketcher.Constraint("Coincident", 11, 2, 8, 1))
sketch5.addConstraint(Sketcher.Constraint("Coincident", 12, 2, 13, 1))
sketch5.addConstraint(Sketcher.Constraint("Coincident", 13, 2, 14, 1))
sketch5.addConstraint(Sketcher.Constraint("Coincident", 14, 2, 15, 1))
sketch5.addConstraint(Sketcher.Constraint("Coincident", 15, 2, 12, 1))
sketch5.addConstraint(Sketcher.Constraint("Vertical", 0))
sketch5.addConstraint(Sketcher.Constraint("Horizontal", 1))
sketch5.addConstraint(Sketcher.Constraint("Vertical", 2))
sketch5.addConstraint(Sketcher.Constraint("Horizontal", 3))
sketch5.addConstraint(Sketcher.Constraint("Vertical", 4))
sketch5.addConstraint(Sketcher.Constraint("Horizontal", 5))
sketch5.addConstraint(Sketcher.Constraint("Vertical", 6))
sketch5.addConstraint(Sketcher.Constraint("Horizontal", 7))
sketch5.addConstraint(Sketcher.Constraint("Vertical", 8))
sketch5.addConstraint(Sketcher.Constraint("Horizontal", 9))
sketch5.addConstraint(Sketcher.Constraint("Vertical", 10))
sketch5.addConstraint(Sketcher.Constraint("Horizontal", 11))
sketch5.addConstraint(Sketcher.Constraint("Vertical", 12))
sketch5.addConstraint(Sketcher.Constraint("Horizontal", 13))
sketch5.addConstraint(Sketcher.Constraint("Vertical", 14))
sketch5.addConstraint(Sketcher.Constraint("Horizontal", 15))
sketch5.addConstraint(Sketcher.Constraint("Vertical", 3, 2, 4, 2))
sketch5.addConstraint(Sketcher.Constraint("Vertical", 2, 2, 5, 2))
sketch5.addConstraint(Sketcher.Constraint("Vertical", 7, 2, 8, 2))
sketch5.addConstraint(Sketcher.Constraint("Vertical", 6, 2, 9, 2))
sketch5.addConstraint(Sketcher.Constraint("Vertical", 11, 2, 12, 2))
sketch5.addConstraint(Sketcher.Constraint("Vertical", 10, 2, 13, 2))
sketch5.addConstraint(Sketcher.Constraint("Equal", 2, 4))
sketch5.addConstraint(Sketcher.Constraint("Equal", 6, 8))
sketch5.addConstraint(Sketcher.Constraint("Equal", 10, 12))
sketch5.addConstraint(Sketcher.Constraint("DistanceY", 0, 2, 0, 1, Q("0.5 in")))
sketch5.addConstraint(Sketcher.Constraint("DistanceX", 1, 1, 1, 2, Q("0.125 in")))
sketch5.addConstraint(Sketcher.Constraint("DistanceY", 0, 2, -1, 1, Q("2.38 in")))
sketch5.addConstraint(Sketcher.Constraint("DistanceX", -1, 1, 1, 2, Q("0.63 in")))
sketch5.addConstraint(Sketcher.Constraint("DistanceY", 12, 2, -1, 1, Q("5.88 in")))
sketch5.addConstraint(Sketcher.Constraint("DistanceY", 4, 2, -1, 1, 90.085333))
sketch5.addConstraint(Sketcher.Constraint("DistanceY", 8, 2, -1, 1, 119.718667))
pocket2 = doc.addObject("PartDesign::Pocket", "Pocket001")
body.addObject(pocket2)
pocket2.Profile = sketch5
pocket2.Length = Q("0.125 in")

# Sketch on XZ plane
sketch6 = doc.addObject("Sketcher::SketchObject", "Sketch005")
body.addObject(sketch6)
sketch6.AttachmentSupport = (doc.XZ_Plane, [""])
sketch6.MapMode = "FlatFace"
sketch6.AttachmentOffset = App.Placement(Vector(0, 0, 5.88 * 25.4), App.Rotation())
sketch6.addGeometry(Part.LineSegment(Vector(10, -95, 0), Vector(10, -111, 0)), False)
sketch6.addGeometry(Part.LineSegment(Vector(10, -111, 0), Vector(16, -111, 0)), False)
sketch6.addGeometry(Part.LineSegment(Vector(16, -111, 0), Vector(16, -95, 0)), False)
sketch6.addGeometry(Part.LineSegment(Vector(16, -95, 0), Vector(10, -95, 0)), False)
sketch6.addGeometry(Part.LineSegment(Vector(10, -67, 0), Vector(10, -83, 0)), False)
sketch6.addGeometry(Part.LineSegment(Vector(10, -83, 0), Vector(16, -83, 0)), False)
sketch6.addGeometry(Part.LineSegment(Vector(16, -83, 0), Vector(16, -67, 0)), False)
sketch6.addGeometry(Part.LineSegment(Vector(16, -67, 0), Vector(10, -67, 0)), False)
sketch6.addGeometry(Part.LineSegment(Vector(10, -38, 0), Vector(10, -54, 0)), False)
sketch6.addGeometry(Part.LineSegment(Vector(10, -54, 0), Vector(16, -54, 0)), False)
sketch6.addGeometry(Part.LineSegment(Vector(16, -54, 0), Vector(16, -38, 0)), False)
sketch6.addGeometry(Part.LineSegment(Vector(16, -38, 0), Vector(10, -38, 0)), False)
sketch6.addGeometry(Part.LineSegment(Vector(10, -25, 0), Vector(16, -25, 0)), False)
sketch6.addGeometry(Part.LineSegment(Vector(16, -25, 0), Vector(16, 3, 0)), False)
sketch6.addGeometry(Part.LineSegment(Vector(16, 3, 0), Vector(10, 3, 0)), False)
sketch6.addGeometry(Part.LineSegment(Vector(10, 3, 0), Vector(10, -25, 0)), False)
sketch6.addConstraint(Sketcher.Constraint("Coincident", 0, 2, 1, 1))
sketch6.addConstraint(Sketcher.Constraint("Coincident", 1, 2, 2, 1))
sketch6.addConstraint(Sketcher.Constraint("Coincident", 2, 2, 3, 1))
sketch6.addConstraint(Sketcher.Constraint("Coincident", 3, 2, 0, 1))
sketch6.addConstraint(Sketcher.Constraint("Coincident", 4, 2, 5, 1))
sketch6.addConstraint(Sketcher.Constraint("Coincident", 5, 2, 6, 1))
sketch6.addConstraint(Sketcher.Constraint("Coincident", 6, 2, 7, 1))
sketch6.addConstraint(Sketcher.Constraint("Coincident", 7, 2, 4, 1))
sketch6.addConstraint(Sketcher.Constraint("Coincident", 8, 2, 9, 1))
sketch6.addConstraint(Sketcher.Constraint("Coincident", 9, 2, 10, 1))
sketch6.addConstraint(Sketcher.Constraint("Coincident", 10, 2, 11, 1))
sketch6.addConstraint(Sketcher.Constraint("Coincident", 11, 2, 8, 1))
sketch6.addConstraint(Sketcher.Constraint("Coincident", 12, 2, 13, 1))
sketch6.addConstraint(Sketcher.Constraint("Coincident", 13, 2, 14, 1))
sketch6.addConstraint(Sketcher.Constraint("Coincident", 14, 2, 15, 1))
sketch6.addConstraint(Sketcher.Constraint("Coincident", 15, 2, 12, 1))
sketch6.addConstraint(Sketcher.Constraint("Vertical", 0))
sketch6.addConstraint(Sketcher.Constraint("Horizontal", 1))
sketch6.addConstraint(Sketcher.Constraint("Vertical", 2))
sketch6.addConstraint(Sketcher.Constraint("Horizontal", 3))
sketch6.addConstraint(Sketcher.Constraint("Vertical", 4))
sketch6.addConstraint(Sketcher.Constraint("Horizontal", 5))
sketch6.addConstraint(Sketcher.Constraint("Vertical", 6))
sketch6.addConstraint(Sketcher.Constraint("Horizontal", 7))
sketch6.addConstraint(Sketcher.Constraint("Vertical", 8))
sketch6.addConstraint(Sketcher.Constraint("Horizontal", 9))
sketch6.addConstraint(Sketcher.Constraint("Vertical", 10))
sketch6.addConstraint(Sketcher.Constraint("Horizontal", 11))
sketch6.addConstraint(Sketcher.Constraint("Horizontal", 12))
sketch6.addConstraint(Sketcher.Constraint("Vertical", 13))
sketch6.addConstraint(Sketcher.Constraint("Horizontal", 14))
sketch6.addConstraint(Sketcher.Constraint("Vertical", 15))
sketch6.addConstraint(Sketcher.Constraint("Vertical", 3, 2, 4, 2))
sketch6.addConstraint(Sketcher.Constraint("Vertical", 2, 2, 5, 2))
sketch6.addConstraint(Sketcher.Constraint("Vertical", 7, 2, 8, 2))
sketch6.addConstraint(Sketcher.Constraint("Vertical", 6, 2, 9, 2))
sketch6.addConstraint(Sketcher.Constraint("Vertical", 10, 2, 12, 2))
sketch6.addConstraint(Sketcher.Constraint("Vertical", 11, 2, 14, 2))
sketch6.addConstraint(Sketcher.Constraint("Equal", 2, 4))
sketch6.addConstraint(Sketcher.Constraint("Equal", 6, 8))
sketch6.addConstraint(Sketcher.Constraint("DistanceY", 12, 2, -1, 1, Q("1 in")))
sketch6.addConstraint(Sketcher.Constraint("DistanceX", 1, 1, 1, 2, Q("0.25 in")))
sketch6.addConstraint(Sketcher.Constraint("DistanceY", 10, 2, -1, 1, Q("1.5 in")))
sketch6.addConstraint(Sketcher.Constraint("DistanceY", 3, 2, 4, 2, Q("0.5 in")))
sketch6.addConstraint(Sketcher.Constraint("DistanceY", 7, 2, 8, 2, Q("0.5 in")))
sketch6.addConstraint(Sketcher.Constraint("DistanceY", 0, 2, 0, 1, Q("0.625 in")))
sketch6.addConstraint(Sketcher.Constraint("DistanceY", 13, 1, 13, 2, Q("1.125 in")))
sketch6.addConstraint(Sketcher.Constraint("DistanceX", -1, 1, 0, 2, Q("0.38 in")))
pocket3 = doc.addObject("PartDesign::Pocket", "Pocket002")
body.addObject(pocket3)
pocket3.Profile = sketch6
pocket3.Length = Q("0.25 in")

doc.recompute()
